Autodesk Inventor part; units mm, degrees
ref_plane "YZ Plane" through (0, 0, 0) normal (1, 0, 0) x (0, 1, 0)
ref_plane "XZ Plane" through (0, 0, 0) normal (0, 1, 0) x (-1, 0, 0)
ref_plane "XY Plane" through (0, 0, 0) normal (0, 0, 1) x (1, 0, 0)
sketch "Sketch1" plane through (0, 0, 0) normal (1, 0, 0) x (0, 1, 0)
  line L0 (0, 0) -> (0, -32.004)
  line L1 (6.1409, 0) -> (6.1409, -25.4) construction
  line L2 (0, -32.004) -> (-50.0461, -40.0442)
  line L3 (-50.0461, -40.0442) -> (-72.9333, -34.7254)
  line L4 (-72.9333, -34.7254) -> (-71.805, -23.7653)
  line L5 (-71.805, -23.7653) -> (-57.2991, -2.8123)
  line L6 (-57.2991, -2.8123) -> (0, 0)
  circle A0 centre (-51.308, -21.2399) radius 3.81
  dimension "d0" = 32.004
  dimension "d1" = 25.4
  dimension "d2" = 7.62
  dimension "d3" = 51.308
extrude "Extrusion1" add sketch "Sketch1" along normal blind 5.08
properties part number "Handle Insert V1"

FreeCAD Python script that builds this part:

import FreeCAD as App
import Part
import Sketcher

V = App.Vector
Q = App.Units.Quantity


def add_polygon(sketch, points):
    """Adds a closed chain of lines whose ends are joined by coincident constraints."""
    first, n = sketch.GeometryCount, len(points)
    for a, b in zip(points, points[1:] + points[:1]):
        sketch.addGeometry(Part.LineSegment(App.Vector(*a, 0), App.Vector(*b, 0)), False)
    for i in range(n):
        sketch.addConstraint(Sketcher.Constraint("Coincident", first + i, 2, first + (i + 1) % n, 1))

doc = App.newDocument("Part")
params = doc.addObject("Spreadsheet::Sheet", "Params")
for row, (alias, value) in enumerate([
    ("sketch1_diameter", "0.3 in"),
    ("sketch1_height", "1.26 in"),
    ("pad1_length", "0.2 in"),
], start=1):
    params.set(f"A{row}", alias)
    params.set(f"B{row}", "=" + value)
    params.setAlias(f"B{row}", alias)

body = doc.addObject("PartDesign::Body", "Body")

# Sketch on YZ plane
sketch1 = body.newObject("Sketcher::SketchObject", "Sketch")
sketch1.AttachmentSupport = (doc.getObject("YZ_Plane"), [""])
sketch1.MapMode = "FlatFace"
add_polygon(sketch1, [(0, -32), (0, 0), (-57.3, -2.8), (-71.8, -23.8), (-72.9, -34.7), (-50, -40)])  # lines 0-5
sketch1.addGeometry(Part.Circle(V(-51.3, -21.2, 0), V(0, 0, 1), 3.8), False)  # 6
sketch1.addConstraint([
    Sketcher.Constraint("Vertical", 0),
    Sketcher.Constraint("Coincident", 0, 2, -1, 1),
    Sketcher.Constraint("Diameter", 6, Q("0.3 in")),
    Sketcher.Constraint("DistanceY", 0, 1, 0, 2, Q("1.26 in")),
    Sketcher.Constraint("DistanceX", 6, 3, -1, 1, Q("2.02 in")),
    Sketcher.Constraint("Angle", 1, Q("-177.19 deg")),
    Sketcher.Constraint("DistanceX", 3, 2, -1, 1, Q("2.8714 in")),
    Sketcher.Constraint("DistanceY", 6, 3, 1, 2, Q("0.7255 in")),
    Sketcher.Constraint("DistanceX", 2, 2, 1, 2, Q("0.5711 in")),
    Sketcher.Constraint("DistanceY", 3, 2, 2, 2, Q("0.4315 in")),
    Sketcher.Constraint("DistanceY", 4, 2, 3, 2, Q("0.2094 in")),
    Sketcher.Constraint("Distance", 1, Q("57.368 mm")),
    Sketcher.Constraint("Distance", 2, Q("25.4843 mm")),
    Sketcher.Constraint("Distance", 4, Q("23.497 mm")),
])
sketch1.setExpression("Constraints[8]", "Params.sketch1_diameter")
sketch1.setExpression("Constraints[9]", "Params.sketch1_height")
pad1 = body.newObject("PartDesign::Pad", "Pad")
pad1.Profile = sketch1
pad1.setExpression("Length", "Params.pad1_length")

doc.recompute()
